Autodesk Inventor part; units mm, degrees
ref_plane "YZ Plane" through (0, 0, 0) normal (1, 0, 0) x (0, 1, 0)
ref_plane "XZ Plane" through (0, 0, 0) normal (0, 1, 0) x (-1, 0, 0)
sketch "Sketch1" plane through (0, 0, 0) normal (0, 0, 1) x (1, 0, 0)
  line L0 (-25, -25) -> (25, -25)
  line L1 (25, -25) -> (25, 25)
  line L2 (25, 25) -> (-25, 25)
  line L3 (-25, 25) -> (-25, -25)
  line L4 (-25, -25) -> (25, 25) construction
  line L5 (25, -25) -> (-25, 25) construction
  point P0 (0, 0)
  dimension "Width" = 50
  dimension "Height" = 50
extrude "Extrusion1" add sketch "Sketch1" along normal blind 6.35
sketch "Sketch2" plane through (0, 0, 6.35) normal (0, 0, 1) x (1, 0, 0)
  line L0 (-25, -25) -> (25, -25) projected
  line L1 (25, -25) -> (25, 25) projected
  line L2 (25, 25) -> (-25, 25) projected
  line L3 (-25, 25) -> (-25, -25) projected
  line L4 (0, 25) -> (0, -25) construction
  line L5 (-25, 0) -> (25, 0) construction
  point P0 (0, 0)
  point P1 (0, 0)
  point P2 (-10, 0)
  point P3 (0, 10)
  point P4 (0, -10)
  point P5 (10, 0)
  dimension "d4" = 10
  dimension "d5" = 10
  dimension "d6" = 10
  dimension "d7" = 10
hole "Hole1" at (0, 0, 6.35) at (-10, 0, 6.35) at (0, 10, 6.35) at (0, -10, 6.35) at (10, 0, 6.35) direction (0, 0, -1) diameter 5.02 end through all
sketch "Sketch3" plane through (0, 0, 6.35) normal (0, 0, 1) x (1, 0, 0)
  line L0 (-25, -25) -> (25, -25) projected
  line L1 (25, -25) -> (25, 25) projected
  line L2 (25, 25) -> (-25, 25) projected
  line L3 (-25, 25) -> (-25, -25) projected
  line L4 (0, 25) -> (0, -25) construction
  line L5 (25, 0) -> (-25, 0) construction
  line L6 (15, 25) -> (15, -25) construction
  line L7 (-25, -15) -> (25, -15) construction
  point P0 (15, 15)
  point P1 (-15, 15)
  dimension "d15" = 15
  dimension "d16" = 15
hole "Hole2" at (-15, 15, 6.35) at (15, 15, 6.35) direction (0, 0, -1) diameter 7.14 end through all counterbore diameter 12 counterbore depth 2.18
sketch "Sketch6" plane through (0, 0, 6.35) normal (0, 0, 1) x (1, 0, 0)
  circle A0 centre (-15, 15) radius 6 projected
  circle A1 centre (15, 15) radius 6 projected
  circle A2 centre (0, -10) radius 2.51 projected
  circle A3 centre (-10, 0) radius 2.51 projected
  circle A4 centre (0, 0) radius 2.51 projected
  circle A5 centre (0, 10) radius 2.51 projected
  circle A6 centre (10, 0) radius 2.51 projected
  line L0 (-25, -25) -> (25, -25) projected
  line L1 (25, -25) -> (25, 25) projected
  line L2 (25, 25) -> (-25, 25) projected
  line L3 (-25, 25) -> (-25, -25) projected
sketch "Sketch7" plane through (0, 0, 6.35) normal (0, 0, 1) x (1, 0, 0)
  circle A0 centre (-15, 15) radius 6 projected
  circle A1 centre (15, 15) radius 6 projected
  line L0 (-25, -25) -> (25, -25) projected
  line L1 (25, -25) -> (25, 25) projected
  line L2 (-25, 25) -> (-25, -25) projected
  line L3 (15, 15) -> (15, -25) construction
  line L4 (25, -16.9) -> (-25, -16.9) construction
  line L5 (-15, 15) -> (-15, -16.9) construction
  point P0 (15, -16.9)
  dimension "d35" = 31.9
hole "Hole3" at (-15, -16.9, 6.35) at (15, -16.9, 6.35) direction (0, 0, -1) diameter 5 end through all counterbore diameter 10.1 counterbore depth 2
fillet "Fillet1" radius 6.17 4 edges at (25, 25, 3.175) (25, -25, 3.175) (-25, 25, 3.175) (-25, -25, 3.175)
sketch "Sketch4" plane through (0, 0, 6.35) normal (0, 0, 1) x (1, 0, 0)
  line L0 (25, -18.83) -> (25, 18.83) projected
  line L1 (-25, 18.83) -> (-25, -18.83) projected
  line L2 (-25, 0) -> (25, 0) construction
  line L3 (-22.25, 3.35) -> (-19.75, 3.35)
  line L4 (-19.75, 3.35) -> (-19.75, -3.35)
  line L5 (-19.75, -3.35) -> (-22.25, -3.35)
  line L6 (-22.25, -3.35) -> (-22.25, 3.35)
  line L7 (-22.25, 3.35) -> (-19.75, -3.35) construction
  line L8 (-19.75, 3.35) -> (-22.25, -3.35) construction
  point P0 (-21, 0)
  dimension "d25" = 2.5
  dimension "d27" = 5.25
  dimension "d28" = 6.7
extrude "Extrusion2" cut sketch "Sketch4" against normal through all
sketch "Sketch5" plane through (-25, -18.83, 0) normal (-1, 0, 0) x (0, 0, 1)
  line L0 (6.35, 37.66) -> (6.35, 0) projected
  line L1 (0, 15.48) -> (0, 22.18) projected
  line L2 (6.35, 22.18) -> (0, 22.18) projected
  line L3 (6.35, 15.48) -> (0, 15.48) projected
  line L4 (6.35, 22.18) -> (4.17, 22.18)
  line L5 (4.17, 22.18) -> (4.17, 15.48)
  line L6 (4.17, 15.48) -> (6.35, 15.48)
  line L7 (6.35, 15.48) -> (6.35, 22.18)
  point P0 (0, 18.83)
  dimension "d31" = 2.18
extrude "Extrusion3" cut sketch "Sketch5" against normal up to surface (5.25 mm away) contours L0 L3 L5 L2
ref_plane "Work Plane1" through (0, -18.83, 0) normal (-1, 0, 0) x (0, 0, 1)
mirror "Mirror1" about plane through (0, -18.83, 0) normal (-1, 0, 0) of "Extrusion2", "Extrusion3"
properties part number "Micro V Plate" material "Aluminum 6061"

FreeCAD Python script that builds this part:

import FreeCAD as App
import Part
import Sketcher
from FreeCAD import Vector


def edges_at(feature, points):
    """Names of the edges that pass closest to the given points."""
    edges = feature.Shape.Edges
    near = lambda p: min(range(len(edges)), key=lambda i: edges[i].distToShape(Part.Vertex(*p))[0])
    return sorted({f"Edge{near(p) + 1}" for p in points})

doc = App.newDocument("Part")
body = doc.addObject("PartDesign::Body", "Body")

sketch1 = body.newObject("Sketcher::SketchObject", "Sketch")
sketch1.AttachmentSupport = (doc.getObject("XY_Plane"), [""])
sketch1.MapMode = "FlatFace"
sketch1.addGeometry([
    Part.LineSegment(Vector(-25, 25, 0), Vector(-25, -25, 0)),
    Part.LineSegment(Vector(-25, -25, 0), Vector(25, -25, 0)),
    Part.LineSegment(Vector(25, -25, 0), Vector(25, 25, 0)),
    Part.LineSegment(Vector(25, 25, 0), Vector(-25, 25, 0)),
], False)
sketch1.addConstraint([
    Sketcher.Constraint("Coincident", 0, 2, 1, 1),
    Sketcher.Constraint("Coincident", 1, 2, 2, 1),
    Sketcher.Constraint("Coincident", 2, 2, 3, 1),
    Sketcher.Constraint("Coincident", 3, 2, 0, 1),
    Sketcher.Constraint("Vertical", 0),
    Sketcher.Constraint("Horizontal", 1),
    Sketcher.Constraint("Vertical", 2),
    Sketcher.Constraint("Horizontal", 3),
    Sketcher.Constraint("Symmetric", 0, 2, 2, 2, -1, 1),
    Sketcher.Constraint("Equal", 3, 0),
    Sketcher.Constraint("DistanceX", 1, 1, 1, 2, 50.0),
])
pad1 = body.newObject("PartDesign::Pad", "Pad")
pad1.Profile = sketch1
pad1.Length = 6.35

sketch2 = body.newObject("Sketcher::SketchObject", "Sketch001")
sketch2.AttachmentSupport = (doc.getObject("XY_Plane"), [""])
sketch2.MapMode = "FlatFace"
sketch2.AttachmentOffset = App.Placement(Vector(0, 0, 6.35), App.Rotation())
sketch2.addGeometry([
    Part.Circle(Vector(0, 0, 0), Vector(0, 0, 1), 2.51),
    Part.Circle(Vector(-10, 0, 0), Vector(0, 0, 1), 2.51),
    Part.Circle(Vector(0, 10, 0), Vector(0, 0, 1), 2.51),
    Part.Circle(Vector(0, -10, 0), Vector(0, 0, 1), 2.51),
    Part.Circle(Vector(10, 0, 0), Vector(0, 0, 1), 2.51),
], False)
sketch2.addConstraint([
    Sketcher.Constraint("Coincident", 0, 3, -1, 1),
    Sketcher.Constraint("Equal", 0, 1),
    Sketcher.Constraint("Equal", 1, 2),
    Sketcher.Constraint("Equal", 2, 3),
    Sketcher.Constraint("Equal", 3, 4),
    Sketcher.Constraint("Symmetric", 2, 3, 3, 3, -1, 1),
    Sketcher.Constraint("Symmetric", 1, 3, 4, 3, -1, 1),
    Sketcher.Constraint("PointOnObject", 1, 3, -1),
    Sketcher.Constraint("PointOnObject", 2, 3, -2),
    Sketcher.Constraint("Diameter", 0, 5.02),
    Sketcher.Constraint("DistanceX", 1, 3, -1, 1, 10.0),
    Sketcher.Constraint("DistanceY", -1, 1, 2, 3, 10.0),
])
doc.recompute()
hole = body.newObject("PartDesign::Hole", "Hole")
hole.Profile = sketch2
hole.ThreadType = "None"
hole.Diameter = 5.02
hole.DepthType = "ThroughAll"

sketch3 = body.newObject("Sketcher::SketchObject", "Sketch002")
sketch3.AttachmentSupport = (doc.getObject("XY_Plane"), [""])
sketch3.MapMode = "FlatFace"
sketch3.AttachmentOffset = App.Placement(Vector(0, 0, 6.35), App.Rotation())
sketch3.addGeometry([
    Part.Circle(Vector(-15, 15, 0), Vector(0, 0, 1), 3.57),
    Part.Circle(Vector(15, 15, 0), Vector(0, 0, 1), 3.57),
], False)
sketch3.addConstraint([
    Sketcher.Constraint("Equal", 0, 1),
    Sketcher.Constraint("Symmetric", 0, 3, 1, 3, -2),
    Sketcher.Constraint("Diameter", 0, 7.14),
    Sketcher.Constraint("DistanceX", 0, 3, -1, 1, 15.0),
    Sketcher.Constraint("DistanceY", -1, 1, 0, 3, 15.0),
])
doc.recompute()
hole2 = body.newObject("PartDesign::Hole", "Hole001")
hole2.Profile = sketch3
hole2.ThreadType = "None"
hole2.Diameter = 7.14
hole2.DepthType = "ThroughAll"
hole2.HoleCutType = "Counterbore"
hole2.HoleCutDiameter = 12
hole2.HoleCutDepth = 2.18

sketch4 = body.newObject("Sketcher::SketchObject", "Sketch003")
sketch4.AttachmentSupport = (doc.getObject("XY_Plane"), [""])
sketch4.MapMode = "FlatFace"
sketch4.AttachmentOffset = App.Placement(Vector(0, 0, 6.35), App.Rotation())
sketch4.addGeometry([
    Part.Circle(Vector(-15, -16.9, 0), Vector(0, 0, 1), 2.5),
    Part.Circle(Vector(15, -16.9, 0), Vector(0, 0, 1), 2.5),
], False)
sketch4.addConstraint([
    Sketcher.Constraint("Equal", 0, 1),
    Sketcher.Constraint("Symmetric", 0, 3, 1, 3, -2),
    Sketcher.Constraint("Diameter", 0, 5.0),
    Sketcher.Constraint("DistanceX", 0, 3, -1, 1, 15.0),
    Sketcher.Constraint("DistanceY", 0, 3, -1, 1, 16.9),
])
doc.recompute()
hole3 = body.newObject("PartDesign::Hole", "Hole002")
hole3.Profile = sketch4
hole3.ThreadType = "None"
hole3.Diameter = 5
hole3.DepthType = "ThroughAll"
hole3.HoleCutType = "Counterbore"
hole3.HoleCutDiameter = 10.1
hole3.HoleCutDepth = 2
doc.recompute()

fillet = body.newObject("PartDesign::Fillet", "Fillet")
fillet.Base = (hole3, edges_at(hole3, [
    (25, 25, 3.175),
    (25, -25, 3.175),
    (-25, 25, 3.175),
    (-25, -25, 3.175),
]))
fillet.Radius = 6.17

sketch5 = body.newObject("Sketcher::SketchObject", "Sketch004")
sketch5.AttachmentSupport = (doc.getObject("XY_Plane"), [""])
sketch5.MapMode = "FlatFace"
sketch5.AttachmentOffset = App.Placement(Vector(0, 0, 6.35), App.Rotation())
sketch5.addGeometry([
    Part.LineSegment(Vector(-19.75, 3.35, 0), Vector(-22.25, 3.35, 0)),
    Part.LineSegment(Vector(-22.25, 3.35, 0), Vector(-22.25, -3.35, 0)),
    Part.LineSegment(Vector(-22.25, -3.35, 0), Vector(-19.75, -3.35, 0)),
    Part.LineSegment(Vector(-19.75, -3.35, 0), Vector(-19.75, 3.35, 0)),
], False)
sketch5.addConstraint([
    Sketcher.Constraint("Coincident", 0, 2, 1, 1),
    Sketcher.Constraint("Coincident", 1, 2, 2, 1),
    Sketcher.Constraint("Coincident", 2, 2, 3, 1),
    Sketcher.Constraint("Coincident", 3, 2, 0, 1),
    Sketcher.Constraint("Horizontal", 0),
    Sketcher.Constraint("Vertical", 1),
    Sketcher.Constraint("Horizontal", 2),
    Sketcher.Constraint("Vertical", 3),
    Sketcher.Constraint("DistanceX", 0, 2, 0, 1, 2.5),
    Sketcher.Constraint("DistanceY", 1, 2, 1, 1, 6.7),
    Sketcher.Constraint("DistanceX", 0, 2, -1, 1, 22.25),
    Sketcher.Constraint("DistanceY", -1, 1, 0, 2, 3.35),
])
pocket1 = body.newObject("PartDesign::Pocket", "Pocket")
pocket1.Profile = sketch5
pocket1.Type = "ThroughAll"

sketch6 = body.newObject("Sketcher::SketchObject", "Sketch005")
sketch6.AttachmentSupport = (doc.getObject("YZ_Plane"), [""])
sketch6.MapMode = "FlatFace"
sketch6.AttachmentOffset = App.Placement(Vector(0, 0, -25), App.Rotation())
sketch6.addGeometry([
    Part.LineSegment(Vector(-3.35, 6.35, 0), Vector(3.35, 6.35, 0)),
    Part.LineSegment(Vector(3.35, 6.35, 0), Vector(3.35, 4.17, 0)),
    Part.LineSegment(Vector(3.35, 4.17, 0), Vector(-3.35, 4.17, 0)),
    Part.LineSegment(Vector(-3.35, 4.17, 0), Vector(-3.35, 6.35, 0)),
], False)
sketch6.addConstraint([
    Sketcher.Constraint("Coincident", 0, 2, 1, 1),
    Sketcher.Constraint("Coincident", 1, 2, 2, 1),
    Sketcher.Constraint("Coincident", 2, 2, 3, 1),
    Sketcher.Constraint("Coincident", 3, 2, 0, 1),
    Sketcher.Constraint("Horizontal", 0),
    Sketcher.Constraint("Vertical", 1),
    Sketcher.Constraint("Horizontal", 2),
    Sketcher.Constraint("Vertical", 3),
    Sketcher.Constraint("DistanceY", 1, 2, 1, 1, 2.18),
    Sketcher.Constraint("DistanceX", 0, 1, 0, 2, 6.7),
    Sketcher.Constraint("DistanceX", -1, 1, 0, 2, 3.35),
    Sketcher.Constraint("DistanceY", -1, 1, 0, 2, 6.35),
])
pocket2 = body.newObject("PartDesign::Pocket", "Pocket001")
pocket2.Profile = sketch6
pocket2.Length = 5.25
pocket2.Reversed = True
doc.recompute()

mirrored = body.newObject("PartDesign::Mirrored", "Mirrored")
mirrored.Originals = [pocket1, pocket2]
mirrored.MirrorPlane = (doc.getObject("YZ_Plane"), [""])
body.Tip = mirrored

doc.recompute()
